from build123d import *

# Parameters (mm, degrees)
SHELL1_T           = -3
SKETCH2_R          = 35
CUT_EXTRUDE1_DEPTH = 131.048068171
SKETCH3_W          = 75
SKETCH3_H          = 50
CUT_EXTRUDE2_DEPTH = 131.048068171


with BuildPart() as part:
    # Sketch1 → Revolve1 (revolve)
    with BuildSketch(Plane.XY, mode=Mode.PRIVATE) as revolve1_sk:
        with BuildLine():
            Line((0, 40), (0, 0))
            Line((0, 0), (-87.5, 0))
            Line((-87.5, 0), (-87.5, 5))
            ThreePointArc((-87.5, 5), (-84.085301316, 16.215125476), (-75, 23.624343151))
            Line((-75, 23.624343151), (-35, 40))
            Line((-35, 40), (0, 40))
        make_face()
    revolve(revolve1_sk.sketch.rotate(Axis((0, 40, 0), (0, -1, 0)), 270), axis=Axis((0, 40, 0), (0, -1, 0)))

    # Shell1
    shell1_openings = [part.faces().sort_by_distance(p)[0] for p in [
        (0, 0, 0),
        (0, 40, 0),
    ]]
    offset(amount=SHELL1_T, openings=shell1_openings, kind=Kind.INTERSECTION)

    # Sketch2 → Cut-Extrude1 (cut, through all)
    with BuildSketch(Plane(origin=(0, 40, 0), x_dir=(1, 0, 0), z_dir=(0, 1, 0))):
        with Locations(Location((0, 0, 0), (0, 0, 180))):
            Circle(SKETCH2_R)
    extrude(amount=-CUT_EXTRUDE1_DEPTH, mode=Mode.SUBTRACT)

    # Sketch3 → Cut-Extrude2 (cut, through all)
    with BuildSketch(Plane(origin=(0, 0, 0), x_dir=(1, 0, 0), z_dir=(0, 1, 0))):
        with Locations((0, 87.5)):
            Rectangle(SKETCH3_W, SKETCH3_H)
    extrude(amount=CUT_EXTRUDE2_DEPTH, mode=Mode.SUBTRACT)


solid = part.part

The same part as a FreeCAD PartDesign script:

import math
import FreeCAD as App
import Part
import Sketcher


def faces_at(feature, points):
    """Names of the faces that lie closest to the given points."""
    faces = feature.Shape.Faces
    near = lambda p: min(range(len(faces)), key=lambda i: faces[i].distToShape(Part.Vertex(*p))[0])
    return sorted({f"Face{near(p) + 1}" for p in points})


def add_polygon(sketch, points):
    """Adds a closed chain of lines whose ends are joined by coincident constraints."""
    first, n = sketch.GeometryCount, len(points)
    for a, b in zip(points, points[1:] + points[:1]):
        sketch.addGeometry(Part.LineSegment(App.Vector(*a, 0), App.Vector(*b, 0)), False)
    for i in range(n):
        sketch.addConstraint(Sketcher.Constraint("Coincident", first + i, 2, first + (i + 1) % n, 1))

doc = App.newDocument("Part")
body = doc.addObject("PartDesign::Body", "Body")

# Sketch on XY plane
sketch1 = body.newObject("Sketcher::SketchObject", "Sketch")
sketch1.AttachmentSupport = (doc.getObject("XY_Plane"), [""])
sketch1.MapMode = "FlatFace"
sketch1.addGeometry(Part.LineSegment(App.Vector(0, 0, 0), App.Vector(0, 40, 0)), False)
sketch1.addGeometry(Part.LineSegment(App.Vector(0, 40, 0), App.Vector(-35, 40, 0)), False)
sketch1.addGeometry(Part.LineSegment(App.Vector(-35, 40, 0), App.Vector(-75, 23.624343, 0)), False)
sketch1.addGeometry(Part.ArcOfCircle(Part.Circle(App.Vector(-67.375354, 5, 0), App.Vector(0, 0, 1), 20.124646), math.radians(112.263772), math.radians(180)), False)
sketch1.addGeometry(Part.LineSegment(App.Vector(-87.5, 5, 0), App.Vector(-87.5, 0, 0)), False)
sketch1.addGeometry(Part.LineSegment(App.Vector(-87.5, 0, 0), App.Vector(0, 0, 0)), False)
sketch1.addConstraint(Sketcher.Constraint("Coincident", 0, 2, 1, 1))
sketch1.addConstraint(Sketcher.Constraint("Coincident", 1, 2, 2, 1))
sketch1.addConstraint(Sketcher.Constraint("Tangent", 2, 2, 3, 1))
sketch1.addConstraint(Sketcher.Constraint("Tangent", 3, 2, 4, 1))
sketch1.addConstraint(Sketcher.Constraint("Coincident", 4, 2, 5, 1))
sketch1.addConstraint(Sketcher.Constraint("Coincident", 5, 2, 0, 1))
sketch1.addConstraint(Sketcher.Constraint("Vertical", 0))
sketch1.addConstraint(Sketcher.Constraint("Horizontal", 1))
sketch1.addConstraint(Sketcher.Constraint("Vertical", 4))
sketch1.addConstraint(Sketcher.Constraint("Horizontal", 5))
sketch1.addConstraint(Sketcher.Constraint("Coincident", 5, 2, -1, 1))
sketch1.addConstraint(Sketcher.Constraint("DistanceX", 1, 2, 1, 1, 35.0))
sketch1.addConstraint(Sketcher.Constraint("DistanceY", 0, 1, 0, 2, 40.0))
sketch1.addConstraint(Sketcher.Constraint("DistanceY", 4, 2, 4, 1, 5.0))
sketch1.addConstraint(Sketcher.Constraint("DistanceX", 5, 1, 5, 2, 87.5))
sketch1.addConstraint(Sketcher.Constraint("DistanceX", 2, 2, -1, 1, 75.0))
revolution = body.newObject("PartDesign::Revolution", "Revolution")
revolution.Profile = sketch1
revolution.ReferenceAxis = (sketch1, ["V_Axis"])
revolution.Angle = 360
doc.recompute()

thickness = body.newObject("PartDesign::Thickness", "Thickness")
thickness.Base = (revolution, faces_at(revolution, [(0, 0, 0), (0, 40, 0)]))
thickness.Value = 3
thickness.Reversed = True
thickness.Join = "Intersection"

# Sketch on XZ plane
sketch2 = body.newObject("Sketcher::SketchObject", "Sketch001")
sketch2.AttachmentSupport = (doc.getObject("XZ_Plane"), [""])
sketch2.MapMode = "FlatFace"
sketch2.AttachmentOffset = App.Placement(App.Vector(0, 0, -40), App.Rotation())
sketch2.addGeometry(Part.Circle(App.Vector(0, 0, 0), App.Vector(0, 0, 1), 35), False)
sketch2.addConstraint(Sketcher.Constraint("Coincident", 0, 3, -1, 1))
sketch2.addConstraint(Sketcher.Constraint("Diameter", 0, 70.0))
pocket1 = body.newObject("PartDesign::Pocket", "Pocket")
pocket1.Profile = sketch2
pocket1.Type = "ThroughAll"
pocket1.Reversed = True

# Sketch on XZ plane
sketch3 = body.newObject("Sketcher::SketchObject", "Sketch002")
sketch3.AttachmentSupport = (doc.getObject("XZ_Plane"), [""])
sketch3.MapMode = "FlatFace"
add_polygon(sketch3, [(-37.5, -112.5), (-37.5, -62.5), (37.5, -62.5), (37.5, -112.5)])  # lines 0-3
sketch3.addConstraint(Sketcher.Constraint("Vertical", 0))
sketch3.addConstraint(Sketcher.Constraint("Horizontal", 1))
sketch3.addConstraint(Sketcher.Constraint("Vertical", 2))
sketch3.addConstraint(Sketcher.Constraint("Horizontal", 3))
sketch3.addConstraint(Sketcher.Constraint("DistanceX", 1, 1, 1, 2, 75.0))
sketch3.addConstraint(Sketcher.Constraint("DistanceY", 0, 1, 0, 2, 50.0))
sketch3.addConstraint(Sketcher.Constraint("DistanceX", 0, 2, -1, 1, 37.5))
sketch3.addConstraint(Sketcher.Constraint("DistanceY", 0, 2, -1, 1, 62.5))
pocket2 = body.newObject("PartDesign::Pocket", "Pocket001")
pocket2.Profile = sketch3
pocket2.Type = "ThroughAll"

doc.recompute()
